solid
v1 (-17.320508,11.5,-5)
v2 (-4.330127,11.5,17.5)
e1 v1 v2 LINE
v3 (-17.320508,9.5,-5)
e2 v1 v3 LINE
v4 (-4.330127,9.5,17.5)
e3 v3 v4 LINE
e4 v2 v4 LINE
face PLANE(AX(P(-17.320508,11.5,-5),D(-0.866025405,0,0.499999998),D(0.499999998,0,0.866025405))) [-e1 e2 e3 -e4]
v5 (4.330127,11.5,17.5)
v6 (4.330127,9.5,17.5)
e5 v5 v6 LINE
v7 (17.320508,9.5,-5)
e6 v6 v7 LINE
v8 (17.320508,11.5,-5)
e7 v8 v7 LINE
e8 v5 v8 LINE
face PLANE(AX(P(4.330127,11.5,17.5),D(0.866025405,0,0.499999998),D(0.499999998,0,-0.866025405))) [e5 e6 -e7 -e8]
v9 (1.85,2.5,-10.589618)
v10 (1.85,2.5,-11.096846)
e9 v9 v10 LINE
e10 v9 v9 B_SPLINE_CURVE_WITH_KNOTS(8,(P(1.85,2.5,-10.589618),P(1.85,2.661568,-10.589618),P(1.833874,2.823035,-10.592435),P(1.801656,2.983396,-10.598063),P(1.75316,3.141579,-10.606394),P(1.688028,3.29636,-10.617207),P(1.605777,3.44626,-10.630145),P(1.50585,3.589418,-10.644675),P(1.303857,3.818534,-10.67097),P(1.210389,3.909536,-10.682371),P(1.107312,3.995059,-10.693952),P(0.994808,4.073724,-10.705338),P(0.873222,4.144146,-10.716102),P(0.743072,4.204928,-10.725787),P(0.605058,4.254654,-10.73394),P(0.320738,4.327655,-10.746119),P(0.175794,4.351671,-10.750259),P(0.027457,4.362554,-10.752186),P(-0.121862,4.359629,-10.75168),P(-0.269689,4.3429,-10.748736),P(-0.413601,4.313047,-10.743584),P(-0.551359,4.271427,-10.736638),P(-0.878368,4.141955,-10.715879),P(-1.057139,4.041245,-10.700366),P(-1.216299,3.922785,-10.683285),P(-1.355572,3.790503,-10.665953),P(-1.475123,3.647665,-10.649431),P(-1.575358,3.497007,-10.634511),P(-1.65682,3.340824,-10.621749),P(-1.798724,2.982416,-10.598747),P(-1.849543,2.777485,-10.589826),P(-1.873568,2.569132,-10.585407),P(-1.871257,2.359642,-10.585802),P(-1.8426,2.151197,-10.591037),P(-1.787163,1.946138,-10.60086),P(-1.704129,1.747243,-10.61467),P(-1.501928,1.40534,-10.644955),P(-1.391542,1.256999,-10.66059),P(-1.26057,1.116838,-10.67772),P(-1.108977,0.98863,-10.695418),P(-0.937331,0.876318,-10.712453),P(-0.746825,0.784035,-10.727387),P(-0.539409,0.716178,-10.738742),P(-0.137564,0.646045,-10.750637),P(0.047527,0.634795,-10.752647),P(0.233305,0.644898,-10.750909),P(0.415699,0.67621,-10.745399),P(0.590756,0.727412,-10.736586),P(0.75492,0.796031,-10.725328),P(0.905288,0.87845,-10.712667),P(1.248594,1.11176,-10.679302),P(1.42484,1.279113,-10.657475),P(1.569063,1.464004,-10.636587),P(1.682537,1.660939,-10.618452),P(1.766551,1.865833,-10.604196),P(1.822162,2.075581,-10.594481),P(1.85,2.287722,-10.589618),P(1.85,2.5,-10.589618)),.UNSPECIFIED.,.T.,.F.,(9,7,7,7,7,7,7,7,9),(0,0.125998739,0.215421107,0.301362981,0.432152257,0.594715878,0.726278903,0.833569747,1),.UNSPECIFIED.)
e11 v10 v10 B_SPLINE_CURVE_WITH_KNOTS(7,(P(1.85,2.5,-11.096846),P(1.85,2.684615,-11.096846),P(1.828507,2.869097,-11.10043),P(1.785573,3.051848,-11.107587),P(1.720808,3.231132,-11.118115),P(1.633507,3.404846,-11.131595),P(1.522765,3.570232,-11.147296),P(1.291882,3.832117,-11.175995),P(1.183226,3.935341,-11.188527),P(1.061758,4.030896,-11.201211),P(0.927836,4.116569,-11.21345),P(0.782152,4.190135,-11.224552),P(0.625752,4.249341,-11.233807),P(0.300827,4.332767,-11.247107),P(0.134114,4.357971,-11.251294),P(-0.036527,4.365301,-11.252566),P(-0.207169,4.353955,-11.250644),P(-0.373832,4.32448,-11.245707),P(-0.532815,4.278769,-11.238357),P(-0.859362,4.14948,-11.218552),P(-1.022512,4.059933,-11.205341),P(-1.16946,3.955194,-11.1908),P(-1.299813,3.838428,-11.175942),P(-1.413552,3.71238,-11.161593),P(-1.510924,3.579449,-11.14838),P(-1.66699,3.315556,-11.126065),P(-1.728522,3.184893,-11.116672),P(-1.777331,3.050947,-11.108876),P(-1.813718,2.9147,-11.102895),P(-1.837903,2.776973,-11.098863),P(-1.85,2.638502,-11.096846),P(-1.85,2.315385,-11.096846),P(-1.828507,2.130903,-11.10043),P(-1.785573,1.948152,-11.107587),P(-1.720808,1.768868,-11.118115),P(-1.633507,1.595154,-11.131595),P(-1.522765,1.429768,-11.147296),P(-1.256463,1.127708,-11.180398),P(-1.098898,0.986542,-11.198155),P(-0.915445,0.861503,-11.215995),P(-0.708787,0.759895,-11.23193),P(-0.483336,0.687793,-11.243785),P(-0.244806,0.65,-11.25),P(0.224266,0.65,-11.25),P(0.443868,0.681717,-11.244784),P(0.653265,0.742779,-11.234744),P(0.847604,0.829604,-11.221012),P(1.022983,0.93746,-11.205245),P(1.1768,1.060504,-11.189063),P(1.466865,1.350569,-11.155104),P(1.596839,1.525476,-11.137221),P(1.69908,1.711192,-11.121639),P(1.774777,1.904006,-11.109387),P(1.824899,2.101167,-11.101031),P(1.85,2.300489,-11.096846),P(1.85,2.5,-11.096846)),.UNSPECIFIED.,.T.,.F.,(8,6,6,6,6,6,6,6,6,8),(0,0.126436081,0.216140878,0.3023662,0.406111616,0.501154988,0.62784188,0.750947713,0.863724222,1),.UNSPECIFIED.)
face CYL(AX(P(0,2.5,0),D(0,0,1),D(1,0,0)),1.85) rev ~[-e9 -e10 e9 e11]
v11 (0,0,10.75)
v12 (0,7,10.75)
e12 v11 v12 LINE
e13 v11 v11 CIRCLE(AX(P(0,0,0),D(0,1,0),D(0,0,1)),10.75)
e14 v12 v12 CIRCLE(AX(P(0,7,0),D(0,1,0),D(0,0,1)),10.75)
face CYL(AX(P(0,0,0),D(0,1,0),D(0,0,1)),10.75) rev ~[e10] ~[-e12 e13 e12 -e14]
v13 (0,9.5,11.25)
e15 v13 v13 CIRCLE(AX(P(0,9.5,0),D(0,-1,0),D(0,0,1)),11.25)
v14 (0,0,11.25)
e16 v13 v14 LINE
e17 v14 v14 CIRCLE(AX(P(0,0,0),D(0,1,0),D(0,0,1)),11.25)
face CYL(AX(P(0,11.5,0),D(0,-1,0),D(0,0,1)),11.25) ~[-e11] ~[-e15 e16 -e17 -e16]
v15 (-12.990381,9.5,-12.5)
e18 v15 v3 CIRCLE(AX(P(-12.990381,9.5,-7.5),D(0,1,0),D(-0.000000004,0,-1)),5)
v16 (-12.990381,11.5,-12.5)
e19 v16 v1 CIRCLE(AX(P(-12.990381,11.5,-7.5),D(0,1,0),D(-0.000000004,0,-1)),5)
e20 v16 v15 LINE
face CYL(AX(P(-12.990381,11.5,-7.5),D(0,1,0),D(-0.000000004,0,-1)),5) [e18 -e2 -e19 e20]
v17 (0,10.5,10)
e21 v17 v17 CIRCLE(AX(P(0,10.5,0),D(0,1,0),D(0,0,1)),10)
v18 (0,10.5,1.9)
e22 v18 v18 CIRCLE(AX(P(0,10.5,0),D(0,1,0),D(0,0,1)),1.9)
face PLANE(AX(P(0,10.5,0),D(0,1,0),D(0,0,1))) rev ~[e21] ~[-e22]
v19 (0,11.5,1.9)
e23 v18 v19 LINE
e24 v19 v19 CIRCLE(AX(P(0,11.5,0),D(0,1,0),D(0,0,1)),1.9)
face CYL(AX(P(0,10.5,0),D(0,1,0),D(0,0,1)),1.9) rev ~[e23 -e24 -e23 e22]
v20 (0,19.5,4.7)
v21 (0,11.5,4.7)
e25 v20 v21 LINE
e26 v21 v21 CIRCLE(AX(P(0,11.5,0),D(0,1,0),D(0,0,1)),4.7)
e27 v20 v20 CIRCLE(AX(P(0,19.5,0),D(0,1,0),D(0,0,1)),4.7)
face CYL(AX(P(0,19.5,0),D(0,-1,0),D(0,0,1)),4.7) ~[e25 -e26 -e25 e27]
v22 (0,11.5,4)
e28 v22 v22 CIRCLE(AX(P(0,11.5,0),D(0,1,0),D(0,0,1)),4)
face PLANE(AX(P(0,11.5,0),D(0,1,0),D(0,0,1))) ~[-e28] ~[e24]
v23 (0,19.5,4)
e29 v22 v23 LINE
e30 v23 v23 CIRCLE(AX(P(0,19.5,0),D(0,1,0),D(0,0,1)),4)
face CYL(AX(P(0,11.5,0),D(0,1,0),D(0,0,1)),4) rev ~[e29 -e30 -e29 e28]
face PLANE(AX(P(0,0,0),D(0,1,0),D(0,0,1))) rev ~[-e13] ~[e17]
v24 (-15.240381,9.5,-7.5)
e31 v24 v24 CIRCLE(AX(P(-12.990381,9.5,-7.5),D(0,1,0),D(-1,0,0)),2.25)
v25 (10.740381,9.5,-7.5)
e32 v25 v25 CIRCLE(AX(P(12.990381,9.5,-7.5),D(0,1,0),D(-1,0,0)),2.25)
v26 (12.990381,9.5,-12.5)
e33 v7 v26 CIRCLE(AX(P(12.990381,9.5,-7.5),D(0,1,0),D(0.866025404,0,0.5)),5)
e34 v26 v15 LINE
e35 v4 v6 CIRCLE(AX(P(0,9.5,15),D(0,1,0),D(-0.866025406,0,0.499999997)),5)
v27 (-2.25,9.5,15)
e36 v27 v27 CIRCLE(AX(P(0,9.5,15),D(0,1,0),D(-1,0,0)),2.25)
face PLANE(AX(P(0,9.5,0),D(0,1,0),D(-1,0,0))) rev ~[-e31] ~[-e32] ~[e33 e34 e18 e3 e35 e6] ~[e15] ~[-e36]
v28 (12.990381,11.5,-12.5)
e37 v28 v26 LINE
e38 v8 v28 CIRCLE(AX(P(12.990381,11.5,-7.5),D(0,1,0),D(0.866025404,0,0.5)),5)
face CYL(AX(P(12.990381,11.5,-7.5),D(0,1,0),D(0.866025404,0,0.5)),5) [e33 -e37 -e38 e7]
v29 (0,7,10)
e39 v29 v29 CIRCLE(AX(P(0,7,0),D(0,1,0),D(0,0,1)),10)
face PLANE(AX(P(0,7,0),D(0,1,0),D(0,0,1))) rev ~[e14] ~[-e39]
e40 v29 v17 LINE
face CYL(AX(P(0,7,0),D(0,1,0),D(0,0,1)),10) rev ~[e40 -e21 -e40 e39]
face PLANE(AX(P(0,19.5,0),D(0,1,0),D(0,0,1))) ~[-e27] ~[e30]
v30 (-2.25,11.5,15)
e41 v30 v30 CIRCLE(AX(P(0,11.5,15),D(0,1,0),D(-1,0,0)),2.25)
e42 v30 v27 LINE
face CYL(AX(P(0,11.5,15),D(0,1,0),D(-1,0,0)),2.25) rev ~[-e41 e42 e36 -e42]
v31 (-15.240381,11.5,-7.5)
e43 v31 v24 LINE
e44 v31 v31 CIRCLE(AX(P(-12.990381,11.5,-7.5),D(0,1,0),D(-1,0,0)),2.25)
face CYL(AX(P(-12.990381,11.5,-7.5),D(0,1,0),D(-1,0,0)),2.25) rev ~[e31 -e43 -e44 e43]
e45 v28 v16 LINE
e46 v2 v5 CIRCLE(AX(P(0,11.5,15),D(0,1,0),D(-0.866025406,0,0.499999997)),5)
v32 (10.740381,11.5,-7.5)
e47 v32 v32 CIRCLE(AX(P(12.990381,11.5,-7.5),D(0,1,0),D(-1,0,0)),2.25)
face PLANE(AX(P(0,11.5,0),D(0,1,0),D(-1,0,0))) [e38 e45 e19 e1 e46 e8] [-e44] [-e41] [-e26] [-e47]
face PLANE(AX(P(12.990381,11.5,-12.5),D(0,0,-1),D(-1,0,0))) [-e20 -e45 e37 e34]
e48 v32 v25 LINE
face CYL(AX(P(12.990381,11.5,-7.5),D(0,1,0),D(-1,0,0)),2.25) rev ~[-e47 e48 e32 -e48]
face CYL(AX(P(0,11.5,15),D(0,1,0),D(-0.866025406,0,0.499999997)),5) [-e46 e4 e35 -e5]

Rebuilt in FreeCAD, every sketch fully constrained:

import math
import FreeCAD as App
import Part
import Sketcher

V = App.Vector
Q = App.Units.Quantity


def add_polygon(sketch, points):
    """Adds a closed chain of lines whose ends are joined by coincident constraints."""
    first, n = sketch.GeometryCount, len(points)
    for a, b in zip(points, points[1:] + points[:1]):
        sketch.addGeometry(Part.LineSegment(App.Vector(*a, 0), App.Vector(*b, 0)), False)
    for i in range(n):
        sketch.addConstraint(Sketcher.Constraint("Coincident", first + i, 2, first + (i + 1) % n, 1))

doc = App.newDocument("Part")
body = doc.addObject("PartDesign::Body", "Body")

# Sketch on YZ plane
sketch1 = body.newObject("Sketcher::SketchObject", "Sketch")
sketch1.AttachmentSupport = (doc.getObject("YZ_Plane"), [""])
sketch1.MapMode = "FlatFace"
add_polygon(sketch1, [(11.5, 11.25), (0, 11.25), (0, 10.75), (7, 10.75), (7, 10), (10.5, 10), (10.5, 1.9), (11.5, 1.9), (11.5, 4), (19.5, 4), (19.5, 4.7), (11.5, 4.7)])  # lines 0-11
sketch1.addConstraint(Sketcher.Constraint("Horizontal", 0))
sketch1.addConstraint(Sketcher.Constraint("Vertical", 1))
sketch1.addConstraint(Sketcher.Constraint("Horizontal", 2))
sketch1.addConstraint(Sketcher.Constraint("Vertical", 3))
sketch1.addConstraint(Sketcher.Constraint("Horizontal", 4))
sketch1.addConstraint(Sketcher.Constraint("Vertical", 5))
sketch1.addConstraint(Sketcher.Constraint("Horizontal", 6))
sketch1.addConstraint(Sketcher.Constraint("Vertical", 7))
sketch1.addConstraint(Sketcher.Constraint("Horizontal", 8))
sketch1.addConstraint(Sketcher.Constraint("Vertical", 9))
sketch1.addConstraint(Sketcher.Constraint("Horizontal", 10))
sketch1.addConstraint(Sketcher.Constraint("Vertical", 11))
sketch1.addConstraint(Sketcher.Constraint("PointOnObject", 0, 2, -2))
sketch1.addConstraint(Sketcher.Constraint("Vertical", 7, 2, 10, 2))
sketch1.addConstraint(Sketcher.Constraint("DistanceX", 2, 1, 2, 2, 7.0))
sketch1.addConstraint(Sketcher.Constraint("DistanceX", 6, 1, 6, 2, 1.0))
sketch1.addConstraint(Sketcher.Constraint("DistanceX", 8, 1, 8, 2, 8.0))
sketch1.addConstraint(Sketcher.Constraint("DistanceX", 0, 2, 0, 1, 11.5))
sketch1.addConstraint(Sketcher.Constraint("DistanceY", 1, 2, 1, 1, 0.5))
sketch1.addConstraint(Sketcher.Constraint("DistanceY", 5, 2, 5, 1, 8.1))
sketch1.addConstraint(Sketcher.Constraint("DistanceY", 7, 1, 7, 2, 2.1))
sketch1.addConstraint(Sketcher.Constraint("DistanceY", 9, 1, 9, 2, 0.7))
sketch1.addConstraint(Sketcher.Constraint("DistanceY", -1, 1, 3, 2, 10.0))
sketch1.addConstraint(Sketcher.Constraint("DistanceY", 3, 2, 3, 1, 0.75))
revolution = body.newObject("PartDesign::Revolution", "Revolution")
revolution.Profile = sketch1
revolution.ReferenceAxis = (sketch1, ["H_Axis"])
revolution.Angle = 360

# Sketch on XY plane
sketch2 = body.newObject("Sketcher::SketchObject", "Sketch001")
sketch2.AttachmentSupport = (doc.getObject("XY_Plane"), [""])
sketch2.MapMode = "FlatFace"
sketch2.addGeometry(Part.Circle(V(0, 2.5, 0), V(0, 0, 1), 1.85), False)
sketch2.addConstraint(Sketcher.Constraint("PointOnObject", 0, 3, -2))
sketch2.addConstraint(Sketcher.Constraint("Diameter", 0, 3.7))
sketch2.addConstraint(Sketcher.Constraint("DistanceY", -1, 1, 0, 3, 2.5))
pocket1 = body.newObject("PartDesign::Pocket", "Pocket")
pocket1.Profile = sketch2
pocket1.Type = "ThroughAll"

# Sketch on XZ plane
sketch3 = body.newObject("Sketcher::SketchObject", "Sketch002")
sketch3.AttachmentSupport = (doc.getObject("XZ_Plane"), [""])
sketch3.MapMode = "FlatFace"
sketch3.AttachmentOffset = App.Placement(V(0, 0, -11.5), App.Rotation())
sketch3.addGeometry(Part.LineSegment(V(-17.320508, -5, 0), V(-4.330127, 17.5, 0)), False)
sketch3.addGeometry(Part.ArcOfCircle(Part.Circle(V(0, 15, 0), V(0, 0, 1), 5), math.radians(30), math.radians(150)), False)
sketch3.addGeometry(Part.LineSegment(V(4.330127, 17.5, 0), V(17.320508, -5, 0)), False)
sketch3.addGeometry(Part.ArcOfCircle(Part.Circle(V(12.990381, -7.5, 0), V(0, 0, 1), 5), math.radians(-90), math.radians(30)), False)
sketch3.addGeometry(Part.LineSegment(V(12.990381, -12.5, 0), V(-12.990381, -12.5, 0)), False)
sketch3.addGeometry(Part.ArcOfCircle(Part.Circle(V(-12.990381, -7.5, 0), V(0, 0, 1), 5), math.radians(150), math.radians(270)), False)
sketch3.addGeometry(Part.Circle(V(12.990381, -7.5, 0), V(0, 0, 1), 2.25), False)
sketch3.addGeometry(Part.Circle(V(-12.990381, -7.5, 0), V(0, 0, 1), 2.25), False)
sketch3.addGeometry(Part.Circle(V(0, 0, 0), V(0, 0, 1), 10.75), False)
sketch3.addGeometry(Part.Circle(V(0, 15, 0), V(0, 0, 1), 2.25), False)
sketch3.addConstraint(Sketcher.Constraint("Tangent", 0, 2, 1, 2))
sketch3.addConstraint(Sketcher.Constraint("Tangent", 1, 1, 2, 1))
sketch3.addConstraint(Sketcher.Constraint("Tangent", 2, 2, 3, 2))
sketch3.addConstraint(Sketcher.Constraint("Tangent", 3, 1, 4, 1))
sketch3.addConstraint(Sketcher.Constraint("Tangent", 4, 2, 5, 2))
sketch3.addConstraint(Sketcher.Constraint("Tangent", 5, 1, 0, 1))
sketch3.addConstraint(Sketcher.Constraint("Horizontal", 4))
sketch3.addConstraint(Sketcher.Constraint("Coincident", 8, 3, -1, 1))
sketch3.addConstraint(Sketcher.Constraint("Coincident", 6, 3, 3, 3))
sketch3.addConstraint(Sketcher.Constraint("Coincident", 7, 3, 5, 3))
sketch3.addConstraint(Sketcher.Constraint("Coincident", 9, 3, 1, 3))
sketch3.addConstraint(Sketcher.Constraint("Equal", 1, 3))
sketch3.addConstraint(Sketcher.Constraint("Equal", 3, 5))
sketch3.addConstraint(Sketcher.Constraint("Equal", 6, 7))
sketch3.addConstraint(Sketcher.Constraint("Equal", 7, 9))
sketch3.addConstraint(Sketcher.Constraint("Symmetric", 0, 2, 1, 1, -2))
sketch3.addConstraint(Sketcher.Constraint("Radius", 1, 5.0))
sketch3.addConstraint(Sketcher.Constraint("Diameter", 6, 4.5))
sketch3.addConstraint(Sketcher.Constraint("Diameter", 8, 21.5))
sketch3.addConstraint(Sketcher.Constraint("Angle", 0, Q("60 deg")))
sketch3.addConstraint(Sketcher.Constraint("DistanceY", -1, 1, 1, 3, 15.0))
sketch3.addConstraint(Sketcher.Constraint("DistanceY", 2, 2, -1, 1, 5.0))
pad1 = body.newObject("PartDesign::Pad", "Pad")
pad1.Profile = sketch3
pad1.Length = 2

doc.recompute()
